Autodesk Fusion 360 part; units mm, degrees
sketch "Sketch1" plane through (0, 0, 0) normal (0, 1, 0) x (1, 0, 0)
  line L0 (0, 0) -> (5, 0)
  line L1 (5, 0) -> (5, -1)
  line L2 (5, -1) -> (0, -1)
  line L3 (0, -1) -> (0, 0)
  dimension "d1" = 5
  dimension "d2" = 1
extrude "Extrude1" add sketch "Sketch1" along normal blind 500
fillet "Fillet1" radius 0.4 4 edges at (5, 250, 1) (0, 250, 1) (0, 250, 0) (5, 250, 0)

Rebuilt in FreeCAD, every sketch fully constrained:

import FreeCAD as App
import Part
import Sketcher


def edges_at(feature, points):
    """Names of the edges that pass closest to the given points."""
    edges = feature.Shape.Edges
    near = lambda p: min(range(len(edges)), key=lambda i: edges[i].distToShape(Part.Vertex(*p))[0])
    return sorted({f"Edge{near(p) + 1}" for p in points})


def add_polygon(sketch, points):
    """Adds a closed chain of lines whose ends are joined by coincident constraints."""
    first, n = sketch.GeometryCount, len(points)
    for a, b in zip(points, points[1:] + points[:1]):
        sketch.addGeometry(Part.LineSegment(App.Vector(*a, 0), App.Vector(*b, 0)), False)
    for i in range(n):
        sketch.addConstraint(Sketcher.Constraint("Coincident", first + i, 2, first + (i + 1) % n, 1))

doc = App.newDocument("Part")
body = doc.addObject("PartDesign::Body", "Body")

# Sketch on XZ plane
sketch1 = doc.addObject("Sketcher::SketchObject", "Sketch")
body.addObject(sketch1)
sketch1.AttachmentSupport = (doc.XZ_Plane, [""])
sketch1.MapMode = "FlatFace"
add_polygon(sketch1, [(5, 0), (0, 0), (0, 1), (5, 1)])  # lines 0-3
sketch1.addConstraint([
    Sketcher.Constraint("Horizontal", 0),
    Sketcher.Constraint("Vertical", 1),
    Sketcher.Constraint("Horizontal", 2),
    Sketcher.Constraint("Vertical", 3),
    Sketcher.Constraint("Coincident", 0, 2, -1, 1),
    Sketcher.Constraint("DistanceX", 0, 2, 0, 1, 5.0),
    Sketcher.Constraint("DistanceY", 1, 1, 1, 2, 1.0),
])
pad1 = doc.addObject("PartDesign::Pad", "Pad")
body.addObject(pad1)
pad1.Profile = sketch1
pad1.Length = 500
pad1.Reversed = True
doc.recompute()

fillet = doc.addObject("PartDesign::Fillet", "Fillet")
body.addObject(fillet)
fillet.Base = (pad1, edges_at(pad1, [
    (5, 250, 1),
    (0, 250, 1),
    (0, 250, 0),
    (5, 250, 0),
]))
fillet.Radius = 0.4

doc.recompute()
